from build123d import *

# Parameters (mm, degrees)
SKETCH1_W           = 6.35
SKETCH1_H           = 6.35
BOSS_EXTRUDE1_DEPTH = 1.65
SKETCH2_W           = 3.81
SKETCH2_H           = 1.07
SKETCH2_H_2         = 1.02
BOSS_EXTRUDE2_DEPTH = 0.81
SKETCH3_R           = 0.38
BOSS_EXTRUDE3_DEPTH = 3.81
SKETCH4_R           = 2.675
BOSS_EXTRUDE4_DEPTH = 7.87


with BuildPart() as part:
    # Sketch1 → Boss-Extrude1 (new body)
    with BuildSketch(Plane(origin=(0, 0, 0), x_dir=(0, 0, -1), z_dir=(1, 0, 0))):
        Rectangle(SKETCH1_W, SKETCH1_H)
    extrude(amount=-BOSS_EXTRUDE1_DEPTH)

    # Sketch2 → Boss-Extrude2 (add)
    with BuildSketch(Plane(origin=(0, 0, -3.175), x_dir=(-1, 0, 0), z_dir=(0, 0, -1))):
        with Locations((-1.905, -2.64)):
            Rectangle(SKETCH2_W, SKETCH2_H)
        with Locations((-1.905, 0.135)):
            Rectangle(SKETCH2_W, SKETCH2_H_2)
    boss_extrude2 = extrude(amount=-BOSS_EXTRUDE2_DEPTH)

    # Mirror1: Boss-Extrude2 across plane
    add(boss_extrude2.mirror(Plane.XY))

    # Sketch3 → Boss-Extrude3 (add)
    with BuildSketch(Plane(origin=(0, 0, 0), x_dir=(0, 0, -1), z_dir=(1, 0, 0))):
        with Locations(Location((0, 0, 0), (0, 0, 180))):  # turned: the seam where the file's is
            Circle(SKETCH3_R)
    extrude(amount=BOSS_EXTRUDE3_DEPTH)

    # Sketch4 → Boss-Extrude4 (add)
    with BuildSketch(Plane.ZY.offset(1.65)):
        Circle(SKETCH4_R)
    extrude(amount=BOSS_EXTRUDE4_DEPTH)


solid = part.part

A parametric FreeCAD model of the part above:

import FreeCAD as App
import Part
import Sketcher
Q = App.Units.Quantity

doc = App.newDocument("Part")
body = doc.addObject("PartDesign::Body", "Body")

sketch1 = body.newObject("Sketcher::SketchObject", "Sketch")
sketch1.AttachmentSupport = (doc.getObject("YZ_Plane"), [""])
sketch1.MapMode = "FlatFace"
sketch1.addGeometry(Part.LineSegment(App.Vector(3, 3, 0), App.Vector(-3, 3, 0)), False)
sketch1.addGeometry(Part.LineSegment(App.Vector(-3, 3, 0), App.Vector(-3, -3, 0)), False)
sketch1.addGeometry(Part.LineSegment(App.Vector(-3, -3, 0), App.Vector(3, -3, 0)), False)
sketch1.addGeometry(Part.LineSegment(App.Vector(3, -3, 0), App.Vector(3, 3, 0)), False)
sketch1.addConstraint(Sketcher.Constraint("Coincident", 0, 2, 1, 1))
sketch1.addConstraint(Sketcher.Constraint("Coincident", 1, 2, 2, 1))
sketch1.addConstraint(Sketcher.Constraint("Coincident", 2, 2, 3, 1))
sketch1.addConstraint(Sketcher.Constraint("Coincident", 3, 2, 0, 1))
sketch1.addConstraint(Sketcher.Constraint("Horizontal", 0))
sketch1.addConstraint(Sketcher.Constraint("Vertical", 1))
sketch1.addConstraint(Sketcher.Constraint("Horizontal", 2))
sketch1.addConstraint(Sketcher.Constraint("Vertical", 3))
sketch1.addConstraint(Sketcher.Constraint("Symmetric", 0, 2, 2, 2, -1, 1))
sketch1.addConstraint(Sketcher.Constraint("Equal", 2, 1))
sketch1.addConstraint(Sketcher.Constraint("DistanceX", 0, 2, 0, 1, Q("0.25 in")))
pad1 = body.newObject("PartDesign::Pad", "Pad")
pad1.Profile = sketch1
pad1.Length = 1.65
pad1.Reversed = True

sketch2 = body.newObject("Sketcher::SketchObject", "Sketch001")
sketch2.AttachmentSupport = (doc.getObject("XY_Plane"), [""])
sketch2.MapMode = "FlatFace"
sketch2.AttachmentOffset = App.Placement(App.Vector(0, 0, -0.125 * 25.4), App.Rotation())
sketch2.addGeometry(Part.LineSegment(App.Vector(3.8, -2.1, 0), App.Vector(3.8, -3.2, 0)), False)
sketch2.addGeometry(Part.LineSegment(App.Vector(3.8, -3.2, 0), App.Vector(0, -3.2, 0)), False)
sketch2.addGeometry(Part.LineSegment(App.Vector(0, -3.2, 0), App.Vector(0, -2.1, 0)), False)
sketch2.addGeometry(Part.LineSegment(App.Vector(0, -2.1, 0), App.Vector(3.8, -2.1, 0)), False)
sketch2.addGeometry(Part.LineSegment(App.Vector(3.8, 0.6, 0), App.Vector(3.8, -0.4, 0)), False)
sketch2.addGeometry(Part.LineSegment(App.Vector(3.8, -0.4, 0), App.Vector(0, -0.4, 0)), False)
sketch2.addGeometry(Part.LineSegment(App.Vector(0, -0.4, 0), App.Vector(0, 0.6, 0)), False)
sketch2.addGeometry(Part.LineSegment(App.Vector(0, 0.6, 0), App.Vector(3.8, 0.6, 0)), False)
sketch2.addConstraint(Sketcher.Constraint("Coincident", 0, 2, 1, 1))
sketch2.addConstraint(Sketcher.Constraint("Coincident", 1, 2, 2, 1))
sketch2.addConstraint(Sketcher.Constraint("Coincident", 2, 2, 3, 1))
sketch2.addConstraint(Sketcher.Constraint("Coincident", 3, 2, 0, 1))
sketch2.addConstraint(Sketcher.Constraint("Coincident", 4, 2, 5, 1))
sketch2.addConstraint(Sketcher.Constraint("Coincident", 5, 2, 6, 1))
sketch2.addConstraint(Sketcher.Constraint("Coincident", 6, 2, 7, 1))
sketch2.addConstraint(Sketcher.Constraint("Coincident", 7, 2, 4, 1))
sketch2.addConstraint(Sketcher.Constraint("Vertical", 0))
sketch2.addConstraint(Sketcher.Constraint("Horizontal", 1))
sketch2.addConstraint(Sketcher.Constraint("Vertical", 2))
sketch2.addConstraint(Sketcher.Constraint("Horizontal", 3))
sketch2.addConstraint(Sketcher.Constraint("Vertical", 4))
sketch2.addConstraint(Sketcher.Constraint("Horizontal", 5))
sketch2.addConstraint(Sketcher.Constraint("Vertical", 6))
sketch2.addConstraint(Sketcher.Constraint("Horizontal", 7))
sketch2.addConstraint(Sketcher.Constraint("PointOnObject", 1, 2, -2))
sketch2.addConstraint(Sketcher.Constraint("PointOnObject", 5, 2, -2))
sketch2.addConstraint(Sketcher.Constraint("Vertical", 3, 2, 4, 2))
sketch2.addConstraint(Sketcher.Constraint("DistanceX", 1, 2, 1, 1, Q("0.15 in")))
sketch2.addConstraint(Sketcher.Constraint("DistanceY", 0, 2, -1, 1, Q("0.125 in")))
sketch2.addConstraint(Sketcher.Constraint("DistanceY", 0, 2, 0, 1, 1.07))
sketch2.addConstraint(Sketcher.Constraint("DistanceY", 4, 2, 4, 1, 1.02))
sketch2.addConstraint(Sketcher.Constraint("DistanceY", 4, 2, -1, 1, 0.375))
pad2 = body.newObject("PartDesign::Pad", "Pad001")
pad2.Profile = sketch2
pad2.Length = 0.81
doc.recompute()

mirrored = body.newObject("PartDesign::Mirrored", "Mirrored")
mirrored.Originals = [pad2]
mirrored.MirrorPlane = (doc.getObject("XY_Plane"), [""])
body.Tip = mirrored

sketch3 = body.newObject("Sketcher::SketchObject", "Sketch002")
sketch3.AttachmentSupport = (doc.getObject("YZ_Plane"), [""])
sketch3.MapMode = "FlatFace"
sketch3.addGeometry(Part.Circle(App.Vector(0, 0, 0), App.Vector(0, 0, 1), 0.38), False)
sketch3.addConstraint(Sketcher.Constraint("Coincident", 0, 3, -1, 1))
sketch3.addConstraint(Sketcher.Constraint("Diameter", 0, 0.76))
pad3 = body.newObject("PartDesign::Pad", "Pad002")
pad3.Profile = sketch3
pad3.Length = Q("0.15 in")

sketch4 = body.newObject("Sketcher::SketchObject", "Sketch003")
sketch4.AttachmentSupport = (doc.getObject("YZ_Plane"), [""])
sketch4.MapMode = "FlatFace"
sketch4.AttachmentOffset = App.Placement(App.Vector(0, 0, -1.65), App.Rotation())
sketch4.addGeometry(Part.Circle(App.Vector(0, 0, 0), App.Vector(0, 0, 1), 2.7), False)
sketch4.addConstraint(Sketcher.Constraint("Coincident", 0, 3, -1, 1))
sketch4.addConstraint(Sketcher.Constraint("Diameter", 0, 5.35))
pad4 = body.newObject("PartDesign::Pad", "Pad003")
pad4.Profile = sketch4
pad4.Length = 7.87
pad4.Reversed = True

doc.recompute()
